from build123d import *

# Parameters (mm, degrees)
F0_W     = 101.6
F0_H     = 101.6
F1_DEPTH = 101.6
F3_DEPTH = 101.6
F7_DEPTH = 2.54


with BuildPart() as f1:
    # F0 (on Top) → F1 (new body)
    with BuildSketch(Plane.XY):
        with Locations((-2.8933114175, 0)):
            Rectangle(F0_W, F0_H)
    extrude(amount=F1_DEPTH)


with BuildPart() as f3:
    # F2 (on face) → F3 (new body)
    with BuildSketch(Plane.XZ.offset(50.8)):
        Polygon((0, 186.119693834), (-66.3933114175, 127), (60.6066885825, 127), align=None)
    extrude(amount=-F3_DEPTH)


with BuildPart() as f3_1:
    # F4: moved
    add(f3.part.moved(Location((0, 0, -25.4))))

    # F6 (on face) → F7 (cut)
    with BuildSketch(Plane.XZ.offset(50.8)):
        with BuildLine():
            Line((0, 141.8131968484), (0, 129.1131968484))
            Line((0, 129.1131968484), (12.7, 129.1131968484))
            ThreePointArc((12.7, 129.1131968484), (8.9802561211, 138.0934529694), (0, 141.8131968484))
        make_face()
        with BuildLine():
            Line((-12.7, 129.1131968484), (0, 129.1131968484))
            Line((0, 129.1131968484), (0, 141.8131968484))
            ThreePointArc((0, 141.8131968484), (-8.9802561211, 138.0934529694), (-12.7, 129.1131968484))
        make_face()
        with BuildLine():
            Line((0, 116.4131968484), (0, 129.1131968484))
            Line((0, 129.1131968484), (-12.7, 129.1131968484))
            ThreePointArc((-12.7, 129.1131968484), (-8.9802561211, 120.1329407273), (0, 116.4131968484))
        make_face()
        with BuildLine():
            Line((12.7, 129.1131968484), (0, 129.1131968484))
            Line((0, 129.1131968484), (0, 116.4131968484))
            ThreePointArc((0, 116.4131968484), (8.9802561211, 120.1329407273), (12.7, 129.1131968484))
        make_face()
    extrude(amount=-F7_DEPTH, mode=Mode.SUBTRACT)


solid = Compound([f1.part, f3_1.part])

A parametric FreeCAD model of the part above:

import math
import FreeCAD as App
import Part
import Sketcher
from FreeCAD import Vector
Q = App.Units.Quantity

doc = App.newDocument("Part")
params = doc.addObject("Spreadsheet::Sheet", "Params")
for row, (alias, value) in enumerate([
    ("sketch1_width", "4 in"),
    ("pad1_length", "4 in"),
    ("sketch2_width", "5 in"),
    ("sketch2_length", "3.5 in"),
    ("pad2_length", "4 in"),
    ("sketch3_radius", "0.5 in"),
    ("pocket1_length", "0.1 in"),
], start=1):
    params.set(f"A{row}", alias)
    params.set(f"B{row}", "=" + value)
    params.setAlias(f"B{row}", alias)

body = doc.addObject("PartDesign::Body", "Body")

# Sketch on XY plane
sketch1 = doc.addObject("Sketcher::SketchObject", "Sketch")
body.addObject(sketch1)
sketch1.AttachmentSupport = (doc.XY_Plane, [""])
sketch1.MapMode = "FlatFace"
sketch1.addGeometry([
    Part.LineSegment(Vector(-53.693311, 50.8, 0), Vector(-53.693311, -50.8, 0)),
    Part.LineSegment(Vector(-53.693311, -50.8, 0), Vector(47.906689, -50.8, 0)),
    Part.LineSegment(Vector(47.906689, -50.8, 0), Vector(47.906689, 50.8, 0)),
    Part.LineSegment(Vector(47.906689, 50.8, 0), Vector(-53.693311, 50.8, 0)),
], False)
sketch1.addConstraint([
    Sketcher.Constraint("Coincident", 0, 2, 1, 1),
    Sketcher.Constraint("Coincident", 1, 2, 2, 1),
    Sketcher.Constraint("Coincident", 2, 2, 3, 1),
    Sketcher.Constraint("Coincident", 3, 2, 0, 1),
    Sketcher.Constraint("Vertical", 0),
    Sketcher.Constraint("Horizontal", 1),
    Sketcher.Constraint("Vertical", 2),
    Sketcher.Constraint("Horizontal", 3),
    Sketcher.Constraint("Equal", 3, 0),
    Sketcher.Constraint("DistanceX", 1, 1, 1, 2, Q("4 in")),
    Sketcher.Constraint("DistanceY", 0, 2, -1, 1, Q("2 in")),
    Sketcher.Constraint("DistanceX", 0, 2, -1, 1, Q("53.693311 mm")),
])
sketch1.setExpression("Constraints[9]", "Params.sketch1_width")
pad1 = doc.addObject("PartDesign::Pad", "Pad")
body.addObject(pad1)
pad1.Profile = sketch1
pad1.setExpression("Length", "Params.pad1_length")
body2 = doc.addObject("PartDesign::Body", "Body001")

# Sketch on XZ plane
sketch2 = doc.addObject("Sketcher::SketchObject", "Sketch001")
body2.addObject(sketch2)
sketch2.AttachmentSupport = (doc.getObject("XZ_Plane001"), [""])
sketch2.MapMode = "FlatFace"
sketch2.AttachmentOffset = App.Placement(Vector(0, 0, 2 * 25.4), App.Rotation())
sketch2.addGeometry([
    Part.LineSegment(Vector(0, 186.119694, 0), Vector(-66.393311, 127, 0)),
    Part.LineSegment(Vector(-66.393311, 127, 0), Vector(60.606689, 127, 0)),
    Part.LineSegment(Vector(60.606689, 127, 0), Vector(0, 186.119694, 0)),
], False)
sketch2.addConstraint([
    Sketcher.Constraint("Coincident", 0, 2, 1, 1),
    Sketcher.Constraint("Coincident", 1, 2, 2, 1),
    Sketcher.Constraint("Coincident", 2, 2, 0, 1),
    Sketcher.Constraint("Horizontal", 1),
    Sketcher.Constraint("PointOnObject", 2, 2, -2),
    Sketcher.Constraint("DistanceX", 1, 1, 1, 2, Q("5 in")),
    Sketcher.Constraint("DistanceY", -1, 1, 0, 2, Q("5 in")),
    Sketcher.Constraint("Distance", 0, Q("3.5 in")),
    Sketcher.Constraint("DistanceX", 0, 2, -1, 1, Q("66.393311 mm")),
])
sketch2.setExpression("Constraints[5]", "Params.sketch2_width")
sketch2.setExpression("Constraints[7]", "Params.sketch2_length")
pad2 = doc.addObject("PartDesign::Pad", "Pad001")
body2.addObject(pad2)
pad2.Profile = sketch2
pad2.setExpression("Length", "Params.pad2_length")
pad2.Reversed = True
body3 = doc.addObject("PartDesign::Body", "Body002")
doc.recompute()

body2.Placement = App.Placement(Vector(0, 0, -25.4), App.Rotation(Vector(0, 0, 1), 0))
boolean = doc.addObject("PartDesign::Boolean", "Boolean")
body3.addObject(boolean)
boolean.Type = "Fuse"
boolean.addObjects([body2])

# Sketch on XZ plane
sketch3 = doc.addObject("Sketcher::SketchObject", "Sketch002")
body3.addObject(sketch3)
sketch3.AttachmentSupport = (doc.getObject("XZ_Plane002"), [""])
sketch3.MapMode = "FlatFace"
sketch3.AttachmentOffset = App.Placement(Vector(0, 0, 2 * 25.4), App.Rotation())
sketch3.addGeometry([
    Part.ArcOfCircle(Part.Circle(Vector(0, 129.113197, 0), Vector(0, 0, 1), 12.7), math.radians(0), math.radians(90)),
    Part.ArcOfCircle(Part.Circle(Vector(0, 129.113197, 0), Vector(0, 0, 1), 12.7), math.radians(90), math.radians(180)),
    Part.ArcOfCircle(Part.Circle(Vector(0, 129.113197, 0), Vector(0, 0, 1), 12.7), math.radians(180), math.radians(270)),
    Part.ArcOfCircle(Part.Circle(Vector(0, 129.113197, 0), Vector(0, 0, 1), 12.7), math.radians(-90), math.radians(0)),
], False)
sketch3.addConstraint([
    Sketcher.Constraint("Tangent", 0, 2, 1, 1),
    Sketcher.Constraint("Tangent", 1, 2, 2, 1),
    Sketcher.Constraint("Tangent", 2, 2, 3, 1),
    Sketcher.Constraint("Tangent", 3, 2, 0, 1),
    Sketcher.Constraint("Equal", 0, 1),
    Sketcher.Constraint("Symmetric", 1, 2, 3, 2, -2),
    Sketcher.Constraint("PointOnObject", 0, 2, -2),
    Sketcher.Constraint("PointOnObject", 2, 2, -2),
    Sketcher.Constraint("Horizontal", 3, 3, 1, 2),
    Sketcher.Constraint("Radius", 0, Q("0.5 in")),
    Sketcher.Constraint("DistanceY", -1, 1, 0, 3, Q("129.113197 mm")),
])
sketch3.setExpression("Constraints[9]", "Params.sketch3_radius")
pocket1 = doc.addObject("PartDesign::Pocket", "Pocket")
body3.addObject(pocket1)
pocket1.Profile = sketch3
pocket1.setExpression("Length", "Params.pocket1_length")

doc.recompute()
